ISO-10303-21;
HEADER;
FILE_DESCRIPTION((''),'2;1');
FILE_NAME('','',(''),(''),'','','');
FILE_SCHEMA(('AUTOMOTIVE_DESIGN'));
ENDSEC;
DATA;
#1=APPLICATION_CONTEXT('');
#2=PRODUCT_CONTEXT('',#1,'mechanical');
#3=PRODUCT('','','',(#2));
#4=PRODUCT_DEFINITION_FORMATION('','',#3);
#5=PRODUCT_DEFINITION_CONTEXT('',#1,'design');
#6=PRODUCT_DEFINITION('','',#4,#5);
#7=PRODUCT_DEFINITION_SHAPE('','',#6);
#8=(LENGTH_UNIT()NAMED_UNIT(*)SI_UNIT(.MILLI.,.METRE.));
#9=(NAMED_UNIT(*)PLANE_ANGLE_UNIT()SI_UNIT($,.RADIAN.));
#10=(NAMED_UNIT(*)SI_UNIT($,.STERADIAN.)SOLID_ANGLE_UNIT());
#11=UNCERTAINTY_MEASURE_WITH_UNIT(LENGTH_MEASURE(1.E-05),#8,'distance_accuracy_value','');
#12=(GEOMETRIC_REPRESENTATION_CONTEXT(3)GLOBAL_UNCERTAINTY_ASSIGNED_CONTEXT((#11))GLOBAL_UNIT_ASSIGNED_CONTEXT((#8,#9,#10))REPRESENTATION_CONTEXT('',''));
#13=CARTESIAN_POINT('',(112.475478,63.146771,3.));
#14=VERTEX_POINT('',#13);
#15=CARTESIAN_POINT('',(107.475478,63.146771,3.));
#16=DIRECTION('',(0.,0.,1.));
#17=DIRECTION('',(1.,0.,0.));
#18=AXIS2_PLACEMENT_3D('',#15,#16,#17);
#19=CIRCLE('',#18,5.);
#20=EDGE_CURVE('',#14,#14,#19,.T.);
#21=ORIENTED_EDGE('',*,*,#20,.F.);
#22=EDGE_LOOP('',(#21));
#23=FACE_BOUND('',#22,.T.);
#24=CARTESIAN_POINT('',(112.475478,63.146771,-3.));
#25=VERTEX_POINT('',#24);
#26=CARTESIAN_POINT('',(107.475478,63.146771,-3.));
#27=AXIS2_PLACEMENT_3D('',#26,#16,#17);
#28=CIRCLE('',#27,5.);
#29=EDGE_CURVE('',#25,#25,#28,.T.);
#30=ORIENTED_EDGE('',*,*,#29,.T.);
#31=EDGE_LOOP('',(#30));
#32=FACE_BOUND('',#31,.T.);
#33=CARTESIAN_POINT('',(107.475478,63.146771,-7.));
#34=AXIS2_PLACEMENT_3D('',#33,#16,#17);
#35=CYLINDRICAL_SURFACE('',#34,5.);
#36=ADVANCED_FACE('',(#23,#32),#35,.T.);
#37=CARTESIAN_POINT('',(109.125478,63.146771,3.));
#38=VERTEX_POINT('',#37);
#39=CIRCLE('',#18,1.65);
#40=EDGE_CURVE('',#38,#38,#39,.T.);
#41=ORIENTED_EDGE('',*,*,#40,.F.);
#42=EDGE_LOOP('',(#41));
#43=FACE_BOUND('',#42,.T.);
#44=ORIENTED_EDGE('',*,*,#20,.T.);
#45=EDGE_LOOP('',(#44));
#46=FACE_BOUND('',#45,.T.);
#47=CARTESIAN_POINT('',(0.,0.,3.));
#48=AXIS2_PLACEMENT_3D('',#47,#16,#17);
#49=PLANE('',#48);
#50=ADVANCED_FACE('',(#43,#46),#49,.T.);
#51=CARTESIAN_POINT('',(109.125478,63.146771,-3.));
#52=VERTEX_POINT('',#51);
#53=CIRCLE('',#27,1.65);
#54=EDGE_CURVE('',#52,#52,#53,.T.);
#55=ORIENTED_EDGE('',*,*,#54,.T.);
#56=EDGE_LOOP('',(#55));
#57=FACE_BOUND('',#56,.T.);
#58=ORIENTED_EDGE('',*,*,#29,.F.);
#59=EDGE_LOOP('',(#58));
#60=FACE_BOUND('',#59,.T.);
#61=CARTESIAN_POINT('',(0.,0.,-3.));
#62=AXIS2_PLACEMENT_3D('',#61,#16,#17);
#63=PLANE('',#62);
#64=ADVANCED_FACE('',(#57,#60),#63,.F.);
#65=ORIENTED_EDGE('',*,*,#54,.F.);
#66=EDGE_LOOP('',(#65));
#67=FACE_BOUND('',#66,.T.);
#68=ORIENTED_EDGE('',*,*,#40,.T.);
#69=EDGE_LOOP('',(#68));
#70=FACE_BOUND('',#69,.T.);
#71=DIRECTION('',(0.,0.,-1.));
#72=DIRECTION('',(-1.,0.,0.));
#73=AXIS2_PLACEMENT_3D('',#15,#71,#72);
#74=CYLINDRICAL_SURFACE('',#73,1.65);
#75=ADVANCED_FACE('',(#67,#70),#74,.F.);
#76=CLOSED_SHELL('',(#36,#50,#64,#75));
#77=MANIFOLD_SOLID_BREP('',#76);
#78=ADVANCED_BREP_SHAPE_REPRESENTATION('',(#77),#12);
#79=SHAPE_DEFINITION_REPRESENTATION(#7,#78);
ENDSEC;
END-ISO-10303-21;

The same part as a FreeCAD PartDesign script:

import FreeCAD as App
import Part
import Sketcher


def edges_at(feature, points):
    """Names of the edges that pass closest to the given points."""
    edges = feature.Shape.Edges
    near = lambda p: min(range(len(edges)), key=lambda i: edges[i].distToShape(Part.Vertex(*p))[0])
    return sorted({f"Edge{near(p) + 1}" for p in points})


def add_polygon(sketch, points):
    """Adds a closed chain of lines whose ends are joined by coincident constraints."""
    first, n = sketch.GeometryCount, len(points)
    for a, b in zip(points, points[1:] + points[:1]):
        sketch.addGeometry(Part.LineSegment(App.Vector(*a, 0), App.Vector(*b, 0)), False)
    for i in range(n):
        sketch.addConstraint(Sketcher.Constraint("Coincident", first + i, 2, first + (i + 1) % n, 1))

doc = App.newDocument("Part")
body = doc.addObject("PartDesign::Body", "Body")

# Sketch on XY plane
sketch1 = doc.addObject("Sketcher::SketchObject", "Sketch")
body.addObject(sketch1)
sketch1.AttachmentSupport = (doc.XY_Plane, [""])
sketch1.MapMode = "FlatFace"
add_polygon(sketch1, [(103.035797, 78.476037), (103.035797, 67.586451), (92.146211, 67.586451), (92.146211, 58.70709), (103.035797, 58.70709), (103.035797, 47.817504), (111.915158, 47.817504), (111.915158, 58.70709), (122.804744, 58.70709), (122.804744, 67.586451), (111.915158, 67.586451), (111.915158, 78.476037)])  # lines 0-11
sketch1.addGeometry(Part.Circle(App.Vector(107.475478, 63.146771, 0), App.Vector(0, 0, 1), 1.65), False)  # 12
sketch1.addConstraint(Sketcher.Constraint("Vertical", 0))
sketch1.addConstraint(Sketcher.Constraint("Horizontal", 1))
sketch1.addConstraint(Sketcher.Constraint("Vertical", 2))
sketch1.addConstraint(Sketcher.Constraint("Horizontal", 3))
sketch1.addConstraint(Sketcher.Constraint("Vertical", 4))
sketch1.addConstraint(Sketcher.Constraint("Horizontal", 5))
sketch1.addConstraint(Sketcher.Constraint("Vertical", 6))
sketch1.addConstraint(Sketcher.Constraint("Horizontal", 7))
sketch1.addConstraint(Sketcher.Constraint("Vertical", 8))
sketch1.addConstraint(Sketcher.Constraint("Horizontal", 9))
sketch1.addConstraint(Sketcher.Constraint("Vertical", 10))
sketch1.addConstraint(Sketcher.Constraint("Horizontal", 11))
sketch1.addConstraint(Sketcher.Constraint("Horizontal", 3, 2, 6, 2))
sketch1.addConstraint(Sketcher.Constraint("Horizontal", 1, 2, 8, 2))
sketch1.addConstraint(Sketcher.Constraint("Vertical", 0, 2, 3, 2))
sketch1.addConstraint(Sketcher.Constraint("Vertical", 6, 2, 9, 2))
sketch1.addConstraint(Sketcher.Constraint("Equal", 3, 7))
sketch1.addConstraint(Sketcher.Constraint("Equal", 9, 0))
sketch1.addConstraint(Sketcher.Constraint("Equal", 11, 2))
sketch1.addConstraint(Sketcher.Constraint("Equal", 0, 4))
sketch1.addConstraint(Sketcher.Constraint("Diameter", 12, 3.3))
sketch1.addConstraint(Sketcher.Constraint("DistanceX", 5, 1, 5, 2, 8.879362))
sketch1.addConstraint(Sketcher.Constraint("DistanceX", 1, 2, 1, 1, 10.889586))
sketch1.addConstraint(Sketcher.Constraint("DistanceY", -1, 1, 12, 3, 63.146771))
sketch1.addConstraint(Sketcher.Constraint("DistanceY", -1, 1, 0, 2, 67.586451))
sketch1.addConstraint(Sketcher.Constraint("DistanceX", -1, 1, 1, 2, 92.146211))
sketch1.addConstraint(Sketcher.Constraint("DistanceX", 0, 2, 12, 3, 4.439681))
pad1 = doc.addObject("PartDesign::Pad", "Pad")
body.addObject(pad1)
pad1.Profile = sketch1
pad1.Length = 6
pad1.Midplane = True
doc.recompute()

fillet = doc.addObject("PartDesign::Fillet", "Fillet")
body.addObject(fillet)
fillet.Base = (pad1, edges_at(pad1, [
    (122.805, 67.586, 0),
    (111.915, 47.818, 0),
    (92.146, 58.707, 0),
    (103.036, 78.476, 0),
]))
fillet.Radius = 4
doc.recompute()

fillet2 = doc.addObject("PartDesign::Fillet", "Fillet001")
body.addObject(fillet2)
fillet2.Base = (fillet, edges_at(fillet, [
    (111.915, 67.586, 0),
    (111.915, 58.707, 0),
    (103.036, 58.707, 0),
    (103.036, 67.586, 0),
]))
fillet2.Radius = 2

# Sketch on XY plane
sketch2 = doc.addObject("Sketcher::SketchObject", "Sketch001")
body.addObject(sketch2)
sketch2.AttachmentSupport = (doc.XY_Plane, [""])
sketch2.MapMode = "FlatFace"
sketch2.AttachmentOffset = App.Placement(App.Vector(0, 0, 3), App.Rotation())
sketch2.addGeometry(Part.Circle(App.Vector(107.475478, 63.146771, 0), App.Vector(0, 0, 1), 32.383706), False)
sketch2.addGeometry(Part.Circle(App.Vector(107.475478, 63.146771, 0), App.Vector(0, 0, 1), 5), False)
sketch2.addConstraint(Sketcher.Constraint("Coincident", 1, 3, 0, 3))
sketch2.addConstraint(Sketcher.Constraint("Diameter", 1, 10.0))
sketch2.addConstraint(Sketcher.Constraint("Diameter", 0, 64.767412))
sketch2.addConstraint(Sketcher.Constraint("DistanceY", -1, 1, 0, 3, 63.146771))
sketch2.addConstraint(Sketcher.Constraint("DistanceX", -1, 1, 0, 3, 107.475478))
pocket1 = doc.addObject("PartDesign::Pocket", "Pocket")
body.addObject(pocket1)
pocket1.Profile = sketch2
pocket1.Length = 10

doc.recompute()
